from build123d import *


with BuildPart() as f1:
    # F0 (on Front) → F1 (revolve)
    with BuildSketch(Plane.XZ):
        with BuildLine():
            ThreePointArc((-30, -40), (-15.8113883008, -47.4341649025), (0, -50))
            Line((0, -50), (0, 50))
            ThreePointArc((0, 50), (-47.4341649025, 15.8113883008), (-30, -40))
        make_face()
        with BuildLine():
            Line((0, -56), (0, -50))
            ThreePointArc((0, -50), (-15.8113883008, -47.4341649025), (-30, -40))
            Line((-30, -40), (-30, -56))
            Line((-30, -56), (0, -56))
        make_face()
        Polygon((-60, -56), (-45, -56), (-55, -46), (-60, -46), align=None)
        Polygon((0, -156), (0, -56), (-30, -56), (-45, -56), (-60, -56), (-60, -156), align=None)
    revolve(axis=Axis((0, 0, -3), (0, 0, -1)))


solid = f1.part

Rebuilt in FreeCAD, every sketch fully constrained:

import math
import FreeCAD as App
import Part
import Sketcher

V = App.Vector
Q = App.Units.Quantity

doc = App.newDocument("Part")
body = doc.addObject("PartDesign::Body", "Body")

# Sketch on XZ plane
sketch1 = body.newObject("Sketcher::SketchObject", "Sketch")
sketch1.AttachmentSupport = (doc.getObject("XZ_Plane"), [""])
sketch1.MapMode = "FlatFace"
sketch1.addGeometry(Part.ArcOfCircle(Part.Circle(V(0, 0, 0), V(0, 0, 1), 50), math.radians(90), math.radians(233.130102)), False)
sketch1.addGeometry(Part.LineSegment(V(-30, -40, 0), V(-30, -56, 0)), False)
sketch1.addGeometry(Part.LineSegment(V(-30, -56, 0), V(-45, -56, 0)), False)
sketch1.addGeometry(Part.LineSegment(V(-45, -56, 0), V(-55, -46, 0)), False)
sketch1.addGeometry(Part.LineSegment(V(-55, -46, 0), V(-60, -46, 0)), False)
sketch1.addGeometry(Part.LineSegment(V(-60, -46, 0), V(-60, -156, 0)), False)
sketch1.addGeometry(Part.LineSegment(V(-60, -156, 0), V(0, -156, 0)), False)
sketch1.addGeometry(Part.LineSegment(V(0, -156, 0), V(0, 50, 0)), False)
sketch1.addConstraint(Sketcher.Constraint("Coincident", 0, 2, 1, 1))
sketch1.addConstraint(Sketcher.Constraint("Coincident", 1, 2, 2, 1))
sketch1.addConstraint(Sketcher.Constraint("Coincident", 2, 2, 3, 1))
sketch1.addConstraint(Sketcher.Constraint("Coincident", 3, 2, 4, 1))
sketch1.addConstraint(Sketcher.Constraint("Coincident", 4, 2, 5, 1))
sketch1.addConstraint(Sketcher.Constraint("Coincident", 5, 2, 6, 1))
sketch1.addConstraint(Sketcher.Constraint("Coincident", 6, 2, 7, 1))
sketch1.addConstraint(Sketcher.Constraint("Coincident", 7, 2, 0, 1))
sketch1.addConstraint(Sketcher.Constraint("Vertical", 1))
sketch1.addConstraint(Sketcher.Constraint("Horizontal", 2))
sketch1.addConstraint(Sketcher.Constraint("Horizontal", 4))
sketch1.addConstraint(Sketcher.Constraint("Vertical", 5))
sketch1.addConstraint(Sketcher.Constraint("Horizontal", 6))
sketch1.addConstraint(Sketcher.Constraint("Vertical", 7))
sketch1.addConstraint(Sketcher.Constraint("Coincident", 0, 3, -1, 1))
sketch1.addConstraint(Sketcher.Constraint("PointOnObject", 6, 2, -2))
sketch1.addConstraint(Sketcher.Constraint("Radius", 0, 50.0))
sketch1.addConstraint(Sketcher.Constraint("DistanceX", 2, 2, 2, 1, 15.0))
sketch1.addConstraint(Sketcher.Constraint("DistanceX", 4, 2, 4, 1, 5.0))
sketch1.addConstraint(Sketcher.Constraint("DistanceX", 6, 1, 6, 2, 60.0))
sketch1.addConstraint(Sketcher.Constraint("DistanceY", 1, 2, 1, 1, 16.0))
sketch1.addConstraint(Sketcher.Constraint("DistanceY", 5, 2, 5, 1, 110.0))
sketch1.addConstraint(Sketcher.Constraint("DistanceY", 7, 1, 7, 2, 206.0))
sketch1.addConstraint(Sketcher.Constraint("Angle", 3, Q("135 deg")))
revolution = body.newObject("PartDesign::Revolution", "Revolution")
revolution.Profile = sketch1
revolution.ReferenceAxis = (sketch1, ["V_Axis"])
revolution.Angle = 360

doc.recompute()
